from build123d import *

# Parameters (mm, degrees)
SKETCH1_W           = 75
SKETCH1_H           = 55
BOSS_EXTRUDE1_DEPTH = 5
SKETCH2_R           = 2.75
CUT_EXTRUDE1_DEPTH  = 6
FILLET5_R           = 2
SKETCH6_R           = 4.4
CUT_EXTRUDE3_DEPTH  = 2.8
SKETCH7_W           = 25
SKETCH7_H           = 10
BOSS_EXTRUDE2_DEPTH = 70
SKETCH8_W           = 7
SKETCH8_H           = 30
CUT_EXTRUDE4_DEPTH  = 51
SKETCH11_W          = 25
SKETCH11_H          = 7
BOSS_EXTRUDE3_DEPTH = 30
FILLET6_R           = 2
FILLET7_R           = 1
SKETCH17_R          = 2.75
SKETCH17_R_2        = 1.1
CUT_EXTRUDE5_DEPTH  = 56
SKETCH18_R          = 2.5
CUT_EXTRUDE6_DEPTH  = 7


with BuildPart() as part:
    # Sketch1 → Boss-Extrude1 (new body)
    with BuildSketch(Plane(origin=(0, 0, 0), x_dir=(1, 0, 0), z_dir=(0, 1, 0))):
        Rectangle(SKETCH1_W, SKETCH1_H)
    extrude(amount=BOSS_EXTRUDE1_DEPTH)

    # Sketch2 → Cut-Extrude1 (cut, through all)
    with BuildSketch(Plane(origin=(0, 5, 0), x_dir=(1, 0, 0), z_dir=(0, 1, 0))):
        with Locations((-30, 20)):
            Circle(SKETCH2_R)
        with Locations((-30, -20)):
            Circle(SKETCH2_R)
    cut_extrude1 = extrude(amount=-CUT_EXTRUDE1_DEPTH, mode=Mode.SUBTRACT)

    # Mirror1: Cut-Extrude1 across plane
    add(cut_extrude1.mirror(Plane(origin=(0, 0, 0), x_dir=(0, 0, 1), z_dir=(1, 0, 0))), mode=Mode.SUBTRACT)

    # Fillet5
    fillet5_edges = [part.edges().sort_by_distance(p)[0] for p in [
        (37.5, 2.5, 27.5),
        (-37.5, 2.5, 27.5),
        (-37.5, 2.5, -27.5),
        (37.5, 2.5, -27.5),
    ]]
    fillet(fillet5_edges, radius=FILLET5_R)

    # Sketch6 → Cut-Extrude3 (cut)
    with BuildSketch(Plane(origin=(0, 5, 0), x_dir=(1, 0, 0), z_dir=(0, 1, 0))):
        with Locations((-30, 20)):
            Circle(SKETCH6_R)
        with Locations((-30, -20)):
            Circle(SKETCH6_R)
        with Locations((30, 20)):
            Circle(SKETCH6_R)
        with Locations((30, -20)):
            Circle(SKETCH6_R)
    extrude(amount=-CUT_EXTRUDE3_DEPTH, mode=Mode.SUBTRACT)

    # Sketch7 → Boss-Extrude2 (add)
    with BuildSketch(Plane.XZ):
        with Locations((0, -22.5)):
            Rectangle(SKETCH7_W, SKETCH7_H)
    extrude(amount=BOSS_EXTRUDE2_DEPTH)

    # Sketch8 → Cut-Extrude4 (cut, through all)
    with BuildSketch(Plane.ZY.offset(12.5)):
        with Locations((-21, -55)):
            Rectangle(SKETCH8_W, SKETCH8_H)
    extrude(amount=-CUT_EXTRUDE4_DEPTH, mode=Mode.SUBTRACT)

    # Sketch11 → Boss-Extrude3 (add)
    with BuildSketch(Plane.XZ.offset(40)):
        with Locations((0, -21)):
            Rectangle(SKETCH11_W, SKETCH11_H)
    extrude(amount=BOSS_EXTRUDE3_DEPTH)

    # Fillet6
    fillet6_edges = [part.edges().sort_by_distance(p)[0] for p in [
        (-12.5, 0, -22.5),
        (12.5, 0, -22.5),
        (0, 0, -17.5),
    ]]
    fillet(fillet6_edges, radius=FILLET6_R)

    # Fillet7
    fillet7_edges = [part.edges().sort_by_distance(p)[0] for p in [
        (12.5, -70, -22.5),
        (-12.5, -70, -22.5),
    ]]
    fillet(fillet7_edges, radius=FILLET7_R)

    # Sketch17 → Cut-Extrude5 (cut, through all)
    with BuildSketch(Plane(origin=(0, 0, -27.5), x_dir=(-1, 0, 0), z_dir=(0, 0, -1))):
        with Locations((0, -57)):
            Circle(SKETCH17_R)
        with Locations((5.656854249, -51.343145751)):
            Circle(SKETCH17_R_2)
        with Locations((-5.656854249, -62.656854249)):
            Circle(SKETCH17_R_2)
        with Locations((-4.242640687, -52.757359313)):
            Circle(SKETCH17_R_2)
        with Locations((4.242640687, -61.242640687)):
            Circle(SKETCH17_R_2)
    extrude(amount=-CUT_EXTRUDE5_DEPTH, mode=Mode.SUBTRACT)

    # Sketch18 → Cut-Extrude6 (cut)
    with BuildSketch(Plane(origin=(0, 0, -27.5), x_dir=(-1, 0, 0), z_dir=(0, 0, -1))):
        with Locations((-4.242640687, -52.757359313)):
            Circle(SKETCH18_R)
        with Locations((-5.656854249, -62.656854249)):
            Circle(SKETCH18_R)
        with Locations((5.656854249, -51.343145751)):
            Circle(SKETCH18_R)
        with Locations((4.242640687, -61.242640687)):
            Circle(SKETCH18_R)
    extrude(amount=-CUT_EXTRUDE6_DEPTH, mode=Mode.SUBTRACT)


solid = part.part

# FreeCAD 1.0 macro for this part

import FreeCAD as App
import Part
import Sketcher
Q = App.Units.Quantity


def edges_at(feature, points):
    """Names of the edges that pass closest to the given points."""
    edges = feature.Shape.Edges
    near = lambda p: min(range(len(edges)), key=lambda i: edges[i].distToShape(Part.Vertex(*p))[0])
    return sorted({f"Edge{near(p) + 1}" for p in points})

doc = App.newDocument("Part")
body = doc.addObject("PartDesign::Body", "Body")

# Sketch on XZ plane
sketch1 = body.newObject("Sketcher::SketchObject", "Sketch")
sketch1.AttachmentSupport = (doc.getObject("XZ_Plane"), [""])
sketch1.MapMode = "FlatFace"
sketch1.addGeometry([
    Part.LineSegment(App.Vector(-38, -28, 0), App.Vector(-38, 28, 0)),
    Part.LineSegment(App.Vector(-38, 28, 0), App.Vector(38, 28, 0)),
    Part.LineSegment(App.Vector(38, 28, 0), App.Vector(38, -28, 0)),
    Part.LineSegment(App.Vector(38, -28, 0), App.Vector(-38, -28, 0)),
], False)
sketch1.addConstraint([
    Sketcher.Constraint("Coincident", 0, 2, 1, 1),
    Sketcher.Constraint("Coincident", 1, 2, 2, 1),
    Sketcher.Constraint("Coincident", 2, 2, 3, 1),
    Sketcher.Constraint("Coincident", 3, 2, 0, 1),
    Sketcher.Constraint("Vertical", 0),
    Sketcher.Constraint("Horizontal", 1),
    Sketcher.Constraint("Vertical", 2),
    Sketcher.Constraint("Horizontal", 3),
    Sketcher.Constraint("Symmetric", 0, 2, 2, 2, -1, 1),
    Sketcher.Constraint("DistanceX", 1, 1, 1, 2, Q("75 mm")),
    Sketcher.Constraint("DistanceY", 0, 1, 0, 2, Q("55 mm")),
])
pad1 = body.newObject("PartDesign::Pad", "Pad")
pad1.Profile = sketch1
pad1.Length = 5
pad1.Reversed = True

# Sketch on XZ plane
sketch2 = body.newObject("Sketcher::SketchObject", "Sketch001")
sketch2.AttachmentSupport = (doc.getObject("XZ_Plane"), [""])
sketch2.MapMode = "FlatFace"
sketch2.AttachmentOffset = App.Placement(App.Vector(0, 0, -5), App.Rotation())
sketch2.addGeometry([
    Part.Circle(App.Vector(-30, -20, 0), App.Vector(0, 0, 1), 2.8),
    Part.Circle(App.Vector(-30, 20, 0), App.Vector(0, 0, 1), 2.8),
], False)
sketch2.addConstraint([
    Sketcher.Constraint("Equal", 0, 1),
    Sketcher.Constraint("Symmetric", 0, 3, 1, 3, -1),
    Sketcher.Constraint("Diameter", 0, Q("5.5 mm")),
    Sketcher.Constraint("DistanceX", 0, 3, -1, 1, Q("30 mm")),
    Sketcher.Constraint("DistanceY", 0, 3, -1, 1, Q("20 mm")),
])
pocket1 = body.newObject("PartDesign::Pocket", "Pocket")
pocket1.Profile = sketch2
pocket1.Type = "ThroughAll"
pocket1.Reversed = True
doc.recompute()

mirrored = body.newObject("PartDesign::Mirrored", "Mirrored")
mirrored.Originals = [pocket1]
mirrored.MirrorPlane = (doc.getObject("YZ_Plane"), [""])
body.Tip = mirrored
doc.recompute()

fillet = body.newObject("PartDesign::Fillet", "Fillet")
fillet.Base = (mirrored, edges_at(mirrored, [
    (37.5, 2.5, 27.5),
    (-37.5, 2.5, 27.5),
    (-37.5, 2.5, -27.5),
    (37.5, 2.5, -27.5),
]))
fillet.Radius = 2

# Sketch on XZ plane
sketch3 = body.newObject("Sketcher::SketchObject", "Sketch002")
sketch3.AttachmentSupport = (doc.getObject("XZ_Plane"), [""])
sketch3.MapMode = "FlatFace"
sketch3.AttachmentOffset = App.Placement(App.Vector(0, 0, -5), App.Rotation())
sketch3.addGeometry([
    Part.Circle(App.Vector(-30, -20, 0), App.Vector(0, 0, 1), 4.4),
    Part.Circle(App.Vector(-30, 20, 0), App.Vector(0, 0, 1), 4.4),
    Part.Circle(App.Vector(30, -20, 0), App.Vector(0, 0, 1), 4.4),
    Part.Circle(App.Vector(30, 20, 0), App.Vector(0, 0, 1), 4.4),
], False)
sketch3.addConstraint([
    Sketcher.Constraint("Equal", 0, 1),
    Sketcher.Constraint("Equal", 1, 2),
    Sketcher.Constraint("Equal", 2, 3),
    Sketcher.Constraint("Symmetric", 1, 3, 2, 3, -1, 1),
    Sketcher.Constraint("Symmetric", 0, 3, 3, 3, -1, 1),
    Sketcher.Constraint("Symmetric", 0, 3, 2, 3, -2),
    Sketcher.Constraint("Diameter", 0, Q("8.8 mm")),
    Sketcher.Constraint("DistanceX", 0, 3, -1, 1, Q("30 mm")),
    Sketcher.Constraint("DistanceY", 0, 3, -1, 1, Q("20 mm")),
])
pocket2 = body.newObject("PartDesign::Pocket", "Pocket001")
pocket2.Profile = sketch3
pocket2.Length = 2.8
pocket2.Reversed = True

# Sketch on XZ plane
sketch4 = body.newObject("Sketcher::SketchObject", "Sketch003")
sketch4.AttachmentSupport = (doc.getObject("XZ_Plane"), [""])
sketch4.MapMode = "FlatFace"
sketch4.addGeometry([
    Part.LineSegment(App.Vector(-12, -18, 0), App.Vector(-12, -28, 0)),
    Part.LineSegment(App.Vector(-12, -28, 0), App.Vector(12, -28, 0)),
    Part.LineSegment(App.Vector(12, -28, 0), App.Vector(12, -18, 0)),
    Part.LineSegment(App.Vector(12, -18, 0), App.Vector(-12, -18, 0)),
], False)
sketch4.addConstraint([
    Sketcher.Constraint("Coincident", 0, 2, 1, 1),
    Sketcher.Constraint("Coincident", 1, 2, 2, 1),
    Sketcher.Constraint("Coincident", 2, 2, 3, 1),
    Sketcher.Constraint("Coincident", 3, 2, 0, 1),
    Sketcher.Constraint("Vertical", 0),
    Sketcher.Constraint("Horizontal", 1),
    Sketcher.Constraint("Vertical", 2),
    Sketcher.Constraint("Horizontal", 3),
    Sketcher.Constraint("DistanceX", 1, 1, 1, 2, Q("25 mm")),
    Sketcher.Constraint("DistanceY", 0, 2, 0, 1, Q("10 mm")),
    Sketcher.Constraint("DistanceX", 0, 2, -1, 1, Q("12.5 mm")),
    Sketcher.Constraint("DistanceY", 0, 2, -1, 1, Q("27.5 mm")),
])
pad2 = body.newObject("PartDesign::Pad", "Pad001")
pad2.Profile = sketch4
pad2.Length = 70

# Sketch on YZ plane
sketch5 = body.newObject("Sketcher::SketchObject", "Sketch004")
sketch5.AttachmentSupport = (doc.getObject("YZ_Plane"), [""])
sketch5.MapMode = "FlatFace"
sketch5.AttachmentOffset = App.Placement(App.Vector(0, 0, -12.5), App.Rotation())
sketch5.addGeometry([
    Part.LineSegment(App.Vector(-40, -24, 0), App.Vector(-70, -24, 0)),
    Part.LineSegment(App.Vector(-70, -24, 0), App.Vector(-70, -18, 0)),
    Part.LineSegment(App.Vector(-70, -18, 0), App.Vector(-40, -18, 0)),
    Part.LineSegment(App.Vector(-40, -18, 0), App.Vector(-40, -24, 0)),
], False)
sketch5.addConstraint([
    Sketcher.Constraint("Coincident", 0, 2, 1, 1),
    Sketcher.Constraint("Coincident", 1, 2, 2, 1),
    Sketcher.Constraint("Coincident", 2, 2, 3, 1),
    Sketcher.Constraint("Coincident", 3, 2, 0, 1),
    Sketcher.Constraint("Horizontal", 0),
    Sketcher.Constraint("Vertical", 1),
    Sketcher.Constraint("Horizontal", 2),
    Sketcher.Constraint("Vertical", 3),
    Sketcher.Constraint("DistanceX", 0, 2, 0, 1, Q("30 mm")),
    Sketcher.Constraint("DistanceY", 1, 1, 1, 2, Q("7 mm")),
    Sketcher.Constraint("DistanceX", 0, 2, -1, 1, Q("70 mm")),
    Sketcher.Constraint("DistanceY", 0, 2, -1, 1, Q("24.5 mm")),
])
pocket3 = body.newObject("PartDesign::Pocket", "Pocket002")
pocket3.Profile = sketch5
pocket3.Type = "ThroughAll"
pocket3.Reversed = True

# Sketch on XZ plane
sketch6 = body.newObject("Sketcher::SketchObject", "Sketch005")
sketch6.AttachmentSupport = (doc.getObject("XZ_Plane"), [""])
sketch6.MapMode = "FlatFace"
sketch6.AttachmentOffset = App.Placement(App.Vector(0, 0, 40), App.Rotation())
sketch6.addGeometry([
    Part.LineSegment(App.Vector(-12, -18, 0), App.Vector(-12, -24, 0)),
    Part.LineSegment(App.Vector(-12, -24, 0), App.Vector(12, -24, 0)),
    Part.LineSegment(App.Vector(12, -24, 0), App.Vector(12, -18, 0)),
    Part.LineSegment(App.Vector(12, -18, 0), App.Vector(-12, -18, 0)),
], False)
sketch6.addConstraint([
    Sketcher.Constraint("Coincident", 0, 2, 1, 1),
    Sketcher.Constraint("Coincident", 1, 2, 2, 1),
    Sketcher.Constraint("Coincident", 2, 2, 3, 1),
    Sketcher.Constraint("Coincident", 3, 2, 0, 1),
    Sketcher.Constraint("Vertical", 0),
    Sketcher.Constraint("Horizontal", 1),
    Sketcher.Constraint("Vertical", 2),
    Sketcher.Constraint("Horizontal", 3),
    Sketcher.Constraint("DistanceX", 1, 1, 1, 2, Q("25 mm")),
    Sketcher.Constraint("DistanceY", 0, 2, 0, 1, Q("7 mm")),
    Sketcher.Constraint("DistanceX", 0, 2, -1, 1, Q("12.5 mm")),
    Sketcher.Constraint("DistanceY", 0, 2, -1, 1, Q("24.5 mm")),
])
pad3 = body.newObject("PartDesign::Pad", "Pad002")
pad3.Profile = sketch6
pad3.Length = 30
doc.recompute()

fillet2 = body.newObject("PartDesign::Fillet", "Fillet001")
fillet2.Base = (pad3, edges_at(pad3, [(-12.5, 0, -22.5), (12.5, 0, -22.5), (0, 0, -17.5)]))
fillet2.Radius = 2
doc.recompute()

fillet3 = body.newObject("PartDesign::Fillet", "Fillet002")
fillet3.Base = (fillet2, edges_at(fillet2, [(12.5, -70, -22.5), (-12.5, -70, -22.5)]))
fillet3.Radius = 1

# Sketch on XY plane
sketch7 = body.newObject("Sketcher::SketchObject", "Sketch006")
sketch7.AttachmentSupport = (doc.getObject("XY_Plane"), [""])
sketch7.MapMode = "FlatFace"
sketch7.AttachmentOffset = App.Placement(App.Vector(0, 0, -27.5), App.Rotation())
sketch7.addGeometry([
    Part.Circle(App.Vector(0, -57, 0), App.Vector(0, 0, 1), 2.8),  # 0
    Part.Circle(App.Vector(-5.7, -51.3, 0), App.Vector(0, 0, 1), 1.1),  # 1
    Part.Circle(App.Vector(5.7, -62.7, 0), App.Vector(0, 0, 1), 1.1),  # 2
    Part.Circle(App.Vector(4.2, -52.8, 0), App.Vector(0, 0, 1), 1.1),  # 3
    Part.Circle(App.Vector(-4.2, -61.2, 0), App.Vector(0, 0, 1), 1.1),  # 4
], False)
sketch7.addConstraint([
    Sketcher.Constraint("Equal", 1, 2),
    Sketcher.Constraint("Equal", 2, 3),
    Sketcher.Constraint("Equal", 3, 4),
    Sketcher.Constraint("PointOnObject", 0, 3, -2),
    Sketcher.Constraint("Diameter", 0, Q("5.5 mm")),
    Sketcher.Constraint("Diameter", 1, Q("2.2 mm")),
    Sketcher.Constraint("DistanceY", 0, 3, -1, 1, Q("57 mm")),
    Sketcher.Constraint("DistanceX", -1, 1, 3, 3, Q("4.242641 mm")),
    Sketcher.Constraint("DistanceY", 3, 3, -1, 1, Q("52.757359 mm")),
    Sketcher.Constraint("DistanceX", 4, 3, -1, 1, Q("4.242641 mm")),
    Sketcher.Constraint("DistanceY", 4, 3, -1, 1, Q("61.242641 mm")),
    Sketcher.Constraint("DistanceX", 1, 3, 2, 3, Q("11.313708 mm")),
    Sketcher.Constraint("DistanceY", 2, 3, 1, 3, Q("11.313708 mm")),
    Sketcher.Constraint("DistanceX", 1, 3, -1, 1, Q("5.656854 mm")),
    Sketcher.Constraint("DistanceY", 1, 3, -1, 1, Q("51.343146 mm")),
])
pocket4 = body.newObject("PartDesign::Pocket", "Pocket003")
pocket4.Profile = sketch7
pocket4.Type = "ThroughAll"
pocket4.Reversed = True

# Sketch on XY plane
sketch8 = body.newObject("Sketcher::SketchObject", "Sketch007")
sketch8.AttachmentSupport = (doc.getObject("XY_Plane"), [""])
sketch8.MapMode = "FlatFace"
sketch8.AttachmentOffset = App.Placement(App.Vector(0, 0, -27.5), App.Rotation())
sketch8.addGeometry([
    Part.Circle(App.Vector(4.2, -52.8, 0), App.Vector(0, 0, 1), 2.5),
    Part.Circle(App.Vector(5.7, -62.7, 0), App.Vector(0, 0, 1), 2.5),
    Part.Circle(App.Vector(-5.7, -51.3, 0), App.Vector(0, 0, 1), 2.5),
    Part.Circle(App.Vector(-4.2, -61.2, 0), App.Vector(0, 0, 1), 2.5),
], False)
sketch8.addConstraint([
    Sketcher.Constraint("Equal", 0, 1),
    Sketcher.Constraint("Equal", 1, 2),
    Sketcher.Constraint("Equal", 2, 3),
    Sketcher.Constraint("Diameter", 0, Q("5 mm")),
    Sketcher.Constraint("DistanceX", -1, 1, 0, 3, Q("4.242641 mm")),
    Sketcher.Constraint("DistanceY", 0, 3, -1, 1, Q("52.757359 mm")),
    Sketcher.Constraint("DistanceX", 3, 3, -1, 1, Q("4.242641 mm")),
    Sketcher.Constraint("DistanceY", 3, 3, -1, 1, Q("61.242641 mm")),
    Sketcher.Constraint("DistanceX", 2, 3, 1, 3, Q("11.313708 mm")),
    Sketcher.Constraint("DistanceY", 1, 3, 2, 3, Q("11.313708 mm")),
    Sketcher.Constraint("DistanceX", -1, 1, 1, 3, Q("5.656854 mm")),
    Sketcher.Constraint("DistanceY", 1, 3, -1, 1, Q("62.656854 mm")),
])
pocket5 = body.newObject("PartDesign::Pocket", "Pocket004")
pocket5.Profile = sketch8
pocket5.Length = 7
pocket5.Reversed = True

doc.recompute()
